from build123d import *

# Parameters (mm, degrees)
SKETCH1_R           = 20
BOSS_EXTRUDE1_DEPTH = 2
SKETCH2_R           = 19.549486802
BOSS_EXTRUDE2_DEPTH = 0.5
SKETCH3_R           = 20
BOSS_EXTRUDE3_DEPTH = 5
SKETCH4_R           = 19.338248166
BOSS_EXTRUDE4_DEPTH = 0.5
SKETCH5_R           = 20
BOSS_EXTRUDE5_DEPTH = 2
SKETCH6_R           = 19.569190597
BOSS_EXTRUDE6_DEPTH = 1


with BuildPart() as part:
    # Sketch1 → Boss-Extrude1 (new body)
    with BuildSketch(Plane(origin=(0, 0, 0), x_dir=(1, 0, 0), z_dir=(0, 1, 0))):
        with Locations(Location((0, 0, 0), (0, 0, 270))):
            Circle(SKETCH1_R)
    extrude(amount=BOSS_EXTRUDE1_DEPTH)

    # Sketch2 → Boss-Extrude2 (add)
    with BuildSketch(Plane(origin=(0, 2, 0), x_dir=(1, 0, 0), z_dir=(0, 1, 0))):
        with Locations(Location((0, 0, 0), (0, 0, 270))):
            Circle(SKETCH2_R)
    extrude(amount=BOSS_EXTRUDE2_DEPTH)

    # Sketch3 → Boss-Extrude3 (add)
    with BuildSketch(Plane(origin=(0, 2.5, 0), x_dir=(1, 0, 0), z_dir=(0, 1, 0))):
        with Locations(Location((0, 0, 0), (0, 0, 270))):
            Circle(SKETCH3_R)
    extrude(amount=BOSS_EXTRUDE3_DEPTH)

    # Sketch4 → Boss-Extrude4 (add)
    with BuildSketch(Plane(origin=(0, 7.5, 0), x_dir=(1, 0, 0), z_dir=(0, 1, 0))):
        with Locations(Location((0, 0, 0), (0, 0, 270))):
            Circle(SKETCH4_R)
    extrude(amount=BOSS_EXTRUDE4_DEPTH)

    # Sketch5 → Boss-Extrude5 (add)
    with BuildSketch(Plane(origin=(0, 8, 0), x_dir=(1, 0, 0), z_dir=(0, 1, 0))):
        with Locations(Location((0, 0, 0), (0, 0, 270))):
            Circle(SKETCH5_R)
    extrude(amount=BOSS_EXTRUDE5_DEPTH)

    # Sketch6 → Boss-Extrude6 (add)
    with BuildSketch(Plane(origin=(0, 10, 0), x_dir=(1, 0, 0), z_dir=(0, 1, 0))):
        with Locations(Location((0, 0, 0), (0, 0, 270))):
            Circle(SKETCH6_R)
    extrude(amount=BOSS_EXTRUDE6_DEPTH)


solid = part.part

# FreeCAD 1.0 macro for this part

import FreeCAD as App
import Part
import Sketcher
Q = App.Units.Quantity

doc = App.newDocument("Part")
body = doc.addObject("PartDesign::Body", "Body")

# Sketch on XZ plane
sketch1 = body.newObject("Sketcher::SketchObject", "Sketch")
sketch1.AttachmentSupport = (doc.getObject("XZ_Plane"), [""])
sketch1.MapMode = "FlatFace"
sketch1.addGeometry(Part.Circle(App.Vector(0, 0, 0), App.Vector(0, 0, 1), 20), False)
sketch1.addConstraint([
    Sketcher.Constraint("Coincident", 0, 3, -1, 1),
    Sketcher.Constraint("Diameter", 0, Q("40 mm")),
])
pad1 = body.newObject("PartDesign::Pad", "Pad")
pad1.Profile = sketch1
pad1.Length = 2
pad1.Reversed = True

# Sketch on XZ plane
sketch2 = body.newObject("Sketcher::SketchObject", "Sketch001")
sketch2.AttachmentSupport = (doc.getObject("XZ_Plane"), [""])
sketch2.MapMode = "FlatFace"
sketch2.AttachmentOffset = App.Placement(App.Vector(0, 0, -2), App.Rotation())
sketch2.addGeometry(Part.Circle(App.Vector(0, 0, 0), App.Vector(0, 0, 1), 20), False)
sketch2.addConstraint([
    Sketcher.Constraint("Coincident", 0, 3, -1, 1),
    Sketcher.Constraint("Diameter", 0, Q("39.098974 mm")),
])
pad2 = body.newObject("PartDesign::Pad", "Pad001")
pad2.Profile = sketch2
pad2.Length = 0.5
pad2.Reversed = True

# Sketch on XZ plane
sketch3 = body.newObject("Sketcher::SketchObject", "Sketch002")
sketch3.AttachmentSupport = (doc.getObject("XZ_Plane"), [""])
sketch3.MapMode = "FlatFace"
sketch3.AttachmentOffset = App.Placement(App.Vector(0, 0, -2.5), App.Rotation())
sketch3.addGeometry(Part.Circle(App.Vector(0, 0, 0), App.Vector(0, 0, 1), 20), False)
sketch3.addConstraint([
    Sketcher.Constraint("Coincident", 0, 3, -1, 1),
    Sketcher.Constraint("Diameter", 0, Q("40 mm")),
])
pad3 = body.newObject("PartDesign::Pad", "Pad002")
pad3.Profile = sketch3
pad3.Length = 5
pad3.Reversed = True

# Sketch on XZ plane
sketch4 = body.newObject("Sketcher::SketchObject", "Sketch003")
sketch4.AttachmentSupport = (doc.getObject("XZ_Plane"), [""])
sketch4.MapMode = "FlatFace"
sketch4.AttachmentOffset = App.Placement(App.Vector(0, 0, -7.5), App.Rotation())
sketch4.addGeometry(Part.Circle(App.Vector(0, 0, 0), App.Vector(0, 0, 1), 19), False)
sketch4.addConstraint([
    Sketcher.Constraint("Coincident", 0, 3, -1, 1),
    Sketcher.Constraint("Diameter", 0, Q("38.676496 mm")),
])
pad4 = body.newObject("PartDesign::Pad", "Pad003")
pad4.Profile = sketch4
pad4.Length = 0.5
pad4.Reversed = True

# Sketch on XZ plane
sketch5 = body.newObject("Sketcher::SketchObject", "Sketch004")
sketch5.AttachmentSupport = (doc.getObject("XZ_Plane"), [""])
sketch5.MapMode = "FlatFace"
sketch5.AttachmentOffset = App.Placement(App.Vector(0, 0, -8), App.Rotation())
sketch5.addGeometry(Part.Circle(App.Vector(0, 0, 0), App.Vector(0, 0, 1), 20), False)
sketch5.addConstraint([
    Sketcher.Constraint("Coincident", 0, 3, -1, 1),
    Sketcher.Constraint("Diameter", 0, Q("40 mm")),
])
pad5 = body.newObject("PartDesign::Pad", "Pad004")
pad5.Profile = sketch5
pad5.Length = 2
pad5.Reversed = True

# Sketch on XZ plane
sketch6 = body.newObject("Sketcher::SketchObject", "Sketch005")
sketch6.AttachmentSupport = (doc.getObject("XZ_Plane"), [""])
sketch6.MapMode = "FlatFace"
sketch6.AttachmentOffset = App.Placement(App.Vector(0, 0, -10), App.Rotation())
sketch6.addGeometry(Part.Circle(App.Vector(0, 0, 0), App.Vector(0, 0, 1), 20), False)
sketch6.addConstraint([
    Sketcher.Constraint("Coincident", 0, 3, -1, 1),
    Sketcher.Constraint("Diameter", 0, Q("39.138381 mm")),
])
pad6 = body.newObject("PartDesign::Pad", "Pad005")
pad6.Profile = sketch6
pad6.Length = 1
pad6.Reversed = True

doc.recompute()
